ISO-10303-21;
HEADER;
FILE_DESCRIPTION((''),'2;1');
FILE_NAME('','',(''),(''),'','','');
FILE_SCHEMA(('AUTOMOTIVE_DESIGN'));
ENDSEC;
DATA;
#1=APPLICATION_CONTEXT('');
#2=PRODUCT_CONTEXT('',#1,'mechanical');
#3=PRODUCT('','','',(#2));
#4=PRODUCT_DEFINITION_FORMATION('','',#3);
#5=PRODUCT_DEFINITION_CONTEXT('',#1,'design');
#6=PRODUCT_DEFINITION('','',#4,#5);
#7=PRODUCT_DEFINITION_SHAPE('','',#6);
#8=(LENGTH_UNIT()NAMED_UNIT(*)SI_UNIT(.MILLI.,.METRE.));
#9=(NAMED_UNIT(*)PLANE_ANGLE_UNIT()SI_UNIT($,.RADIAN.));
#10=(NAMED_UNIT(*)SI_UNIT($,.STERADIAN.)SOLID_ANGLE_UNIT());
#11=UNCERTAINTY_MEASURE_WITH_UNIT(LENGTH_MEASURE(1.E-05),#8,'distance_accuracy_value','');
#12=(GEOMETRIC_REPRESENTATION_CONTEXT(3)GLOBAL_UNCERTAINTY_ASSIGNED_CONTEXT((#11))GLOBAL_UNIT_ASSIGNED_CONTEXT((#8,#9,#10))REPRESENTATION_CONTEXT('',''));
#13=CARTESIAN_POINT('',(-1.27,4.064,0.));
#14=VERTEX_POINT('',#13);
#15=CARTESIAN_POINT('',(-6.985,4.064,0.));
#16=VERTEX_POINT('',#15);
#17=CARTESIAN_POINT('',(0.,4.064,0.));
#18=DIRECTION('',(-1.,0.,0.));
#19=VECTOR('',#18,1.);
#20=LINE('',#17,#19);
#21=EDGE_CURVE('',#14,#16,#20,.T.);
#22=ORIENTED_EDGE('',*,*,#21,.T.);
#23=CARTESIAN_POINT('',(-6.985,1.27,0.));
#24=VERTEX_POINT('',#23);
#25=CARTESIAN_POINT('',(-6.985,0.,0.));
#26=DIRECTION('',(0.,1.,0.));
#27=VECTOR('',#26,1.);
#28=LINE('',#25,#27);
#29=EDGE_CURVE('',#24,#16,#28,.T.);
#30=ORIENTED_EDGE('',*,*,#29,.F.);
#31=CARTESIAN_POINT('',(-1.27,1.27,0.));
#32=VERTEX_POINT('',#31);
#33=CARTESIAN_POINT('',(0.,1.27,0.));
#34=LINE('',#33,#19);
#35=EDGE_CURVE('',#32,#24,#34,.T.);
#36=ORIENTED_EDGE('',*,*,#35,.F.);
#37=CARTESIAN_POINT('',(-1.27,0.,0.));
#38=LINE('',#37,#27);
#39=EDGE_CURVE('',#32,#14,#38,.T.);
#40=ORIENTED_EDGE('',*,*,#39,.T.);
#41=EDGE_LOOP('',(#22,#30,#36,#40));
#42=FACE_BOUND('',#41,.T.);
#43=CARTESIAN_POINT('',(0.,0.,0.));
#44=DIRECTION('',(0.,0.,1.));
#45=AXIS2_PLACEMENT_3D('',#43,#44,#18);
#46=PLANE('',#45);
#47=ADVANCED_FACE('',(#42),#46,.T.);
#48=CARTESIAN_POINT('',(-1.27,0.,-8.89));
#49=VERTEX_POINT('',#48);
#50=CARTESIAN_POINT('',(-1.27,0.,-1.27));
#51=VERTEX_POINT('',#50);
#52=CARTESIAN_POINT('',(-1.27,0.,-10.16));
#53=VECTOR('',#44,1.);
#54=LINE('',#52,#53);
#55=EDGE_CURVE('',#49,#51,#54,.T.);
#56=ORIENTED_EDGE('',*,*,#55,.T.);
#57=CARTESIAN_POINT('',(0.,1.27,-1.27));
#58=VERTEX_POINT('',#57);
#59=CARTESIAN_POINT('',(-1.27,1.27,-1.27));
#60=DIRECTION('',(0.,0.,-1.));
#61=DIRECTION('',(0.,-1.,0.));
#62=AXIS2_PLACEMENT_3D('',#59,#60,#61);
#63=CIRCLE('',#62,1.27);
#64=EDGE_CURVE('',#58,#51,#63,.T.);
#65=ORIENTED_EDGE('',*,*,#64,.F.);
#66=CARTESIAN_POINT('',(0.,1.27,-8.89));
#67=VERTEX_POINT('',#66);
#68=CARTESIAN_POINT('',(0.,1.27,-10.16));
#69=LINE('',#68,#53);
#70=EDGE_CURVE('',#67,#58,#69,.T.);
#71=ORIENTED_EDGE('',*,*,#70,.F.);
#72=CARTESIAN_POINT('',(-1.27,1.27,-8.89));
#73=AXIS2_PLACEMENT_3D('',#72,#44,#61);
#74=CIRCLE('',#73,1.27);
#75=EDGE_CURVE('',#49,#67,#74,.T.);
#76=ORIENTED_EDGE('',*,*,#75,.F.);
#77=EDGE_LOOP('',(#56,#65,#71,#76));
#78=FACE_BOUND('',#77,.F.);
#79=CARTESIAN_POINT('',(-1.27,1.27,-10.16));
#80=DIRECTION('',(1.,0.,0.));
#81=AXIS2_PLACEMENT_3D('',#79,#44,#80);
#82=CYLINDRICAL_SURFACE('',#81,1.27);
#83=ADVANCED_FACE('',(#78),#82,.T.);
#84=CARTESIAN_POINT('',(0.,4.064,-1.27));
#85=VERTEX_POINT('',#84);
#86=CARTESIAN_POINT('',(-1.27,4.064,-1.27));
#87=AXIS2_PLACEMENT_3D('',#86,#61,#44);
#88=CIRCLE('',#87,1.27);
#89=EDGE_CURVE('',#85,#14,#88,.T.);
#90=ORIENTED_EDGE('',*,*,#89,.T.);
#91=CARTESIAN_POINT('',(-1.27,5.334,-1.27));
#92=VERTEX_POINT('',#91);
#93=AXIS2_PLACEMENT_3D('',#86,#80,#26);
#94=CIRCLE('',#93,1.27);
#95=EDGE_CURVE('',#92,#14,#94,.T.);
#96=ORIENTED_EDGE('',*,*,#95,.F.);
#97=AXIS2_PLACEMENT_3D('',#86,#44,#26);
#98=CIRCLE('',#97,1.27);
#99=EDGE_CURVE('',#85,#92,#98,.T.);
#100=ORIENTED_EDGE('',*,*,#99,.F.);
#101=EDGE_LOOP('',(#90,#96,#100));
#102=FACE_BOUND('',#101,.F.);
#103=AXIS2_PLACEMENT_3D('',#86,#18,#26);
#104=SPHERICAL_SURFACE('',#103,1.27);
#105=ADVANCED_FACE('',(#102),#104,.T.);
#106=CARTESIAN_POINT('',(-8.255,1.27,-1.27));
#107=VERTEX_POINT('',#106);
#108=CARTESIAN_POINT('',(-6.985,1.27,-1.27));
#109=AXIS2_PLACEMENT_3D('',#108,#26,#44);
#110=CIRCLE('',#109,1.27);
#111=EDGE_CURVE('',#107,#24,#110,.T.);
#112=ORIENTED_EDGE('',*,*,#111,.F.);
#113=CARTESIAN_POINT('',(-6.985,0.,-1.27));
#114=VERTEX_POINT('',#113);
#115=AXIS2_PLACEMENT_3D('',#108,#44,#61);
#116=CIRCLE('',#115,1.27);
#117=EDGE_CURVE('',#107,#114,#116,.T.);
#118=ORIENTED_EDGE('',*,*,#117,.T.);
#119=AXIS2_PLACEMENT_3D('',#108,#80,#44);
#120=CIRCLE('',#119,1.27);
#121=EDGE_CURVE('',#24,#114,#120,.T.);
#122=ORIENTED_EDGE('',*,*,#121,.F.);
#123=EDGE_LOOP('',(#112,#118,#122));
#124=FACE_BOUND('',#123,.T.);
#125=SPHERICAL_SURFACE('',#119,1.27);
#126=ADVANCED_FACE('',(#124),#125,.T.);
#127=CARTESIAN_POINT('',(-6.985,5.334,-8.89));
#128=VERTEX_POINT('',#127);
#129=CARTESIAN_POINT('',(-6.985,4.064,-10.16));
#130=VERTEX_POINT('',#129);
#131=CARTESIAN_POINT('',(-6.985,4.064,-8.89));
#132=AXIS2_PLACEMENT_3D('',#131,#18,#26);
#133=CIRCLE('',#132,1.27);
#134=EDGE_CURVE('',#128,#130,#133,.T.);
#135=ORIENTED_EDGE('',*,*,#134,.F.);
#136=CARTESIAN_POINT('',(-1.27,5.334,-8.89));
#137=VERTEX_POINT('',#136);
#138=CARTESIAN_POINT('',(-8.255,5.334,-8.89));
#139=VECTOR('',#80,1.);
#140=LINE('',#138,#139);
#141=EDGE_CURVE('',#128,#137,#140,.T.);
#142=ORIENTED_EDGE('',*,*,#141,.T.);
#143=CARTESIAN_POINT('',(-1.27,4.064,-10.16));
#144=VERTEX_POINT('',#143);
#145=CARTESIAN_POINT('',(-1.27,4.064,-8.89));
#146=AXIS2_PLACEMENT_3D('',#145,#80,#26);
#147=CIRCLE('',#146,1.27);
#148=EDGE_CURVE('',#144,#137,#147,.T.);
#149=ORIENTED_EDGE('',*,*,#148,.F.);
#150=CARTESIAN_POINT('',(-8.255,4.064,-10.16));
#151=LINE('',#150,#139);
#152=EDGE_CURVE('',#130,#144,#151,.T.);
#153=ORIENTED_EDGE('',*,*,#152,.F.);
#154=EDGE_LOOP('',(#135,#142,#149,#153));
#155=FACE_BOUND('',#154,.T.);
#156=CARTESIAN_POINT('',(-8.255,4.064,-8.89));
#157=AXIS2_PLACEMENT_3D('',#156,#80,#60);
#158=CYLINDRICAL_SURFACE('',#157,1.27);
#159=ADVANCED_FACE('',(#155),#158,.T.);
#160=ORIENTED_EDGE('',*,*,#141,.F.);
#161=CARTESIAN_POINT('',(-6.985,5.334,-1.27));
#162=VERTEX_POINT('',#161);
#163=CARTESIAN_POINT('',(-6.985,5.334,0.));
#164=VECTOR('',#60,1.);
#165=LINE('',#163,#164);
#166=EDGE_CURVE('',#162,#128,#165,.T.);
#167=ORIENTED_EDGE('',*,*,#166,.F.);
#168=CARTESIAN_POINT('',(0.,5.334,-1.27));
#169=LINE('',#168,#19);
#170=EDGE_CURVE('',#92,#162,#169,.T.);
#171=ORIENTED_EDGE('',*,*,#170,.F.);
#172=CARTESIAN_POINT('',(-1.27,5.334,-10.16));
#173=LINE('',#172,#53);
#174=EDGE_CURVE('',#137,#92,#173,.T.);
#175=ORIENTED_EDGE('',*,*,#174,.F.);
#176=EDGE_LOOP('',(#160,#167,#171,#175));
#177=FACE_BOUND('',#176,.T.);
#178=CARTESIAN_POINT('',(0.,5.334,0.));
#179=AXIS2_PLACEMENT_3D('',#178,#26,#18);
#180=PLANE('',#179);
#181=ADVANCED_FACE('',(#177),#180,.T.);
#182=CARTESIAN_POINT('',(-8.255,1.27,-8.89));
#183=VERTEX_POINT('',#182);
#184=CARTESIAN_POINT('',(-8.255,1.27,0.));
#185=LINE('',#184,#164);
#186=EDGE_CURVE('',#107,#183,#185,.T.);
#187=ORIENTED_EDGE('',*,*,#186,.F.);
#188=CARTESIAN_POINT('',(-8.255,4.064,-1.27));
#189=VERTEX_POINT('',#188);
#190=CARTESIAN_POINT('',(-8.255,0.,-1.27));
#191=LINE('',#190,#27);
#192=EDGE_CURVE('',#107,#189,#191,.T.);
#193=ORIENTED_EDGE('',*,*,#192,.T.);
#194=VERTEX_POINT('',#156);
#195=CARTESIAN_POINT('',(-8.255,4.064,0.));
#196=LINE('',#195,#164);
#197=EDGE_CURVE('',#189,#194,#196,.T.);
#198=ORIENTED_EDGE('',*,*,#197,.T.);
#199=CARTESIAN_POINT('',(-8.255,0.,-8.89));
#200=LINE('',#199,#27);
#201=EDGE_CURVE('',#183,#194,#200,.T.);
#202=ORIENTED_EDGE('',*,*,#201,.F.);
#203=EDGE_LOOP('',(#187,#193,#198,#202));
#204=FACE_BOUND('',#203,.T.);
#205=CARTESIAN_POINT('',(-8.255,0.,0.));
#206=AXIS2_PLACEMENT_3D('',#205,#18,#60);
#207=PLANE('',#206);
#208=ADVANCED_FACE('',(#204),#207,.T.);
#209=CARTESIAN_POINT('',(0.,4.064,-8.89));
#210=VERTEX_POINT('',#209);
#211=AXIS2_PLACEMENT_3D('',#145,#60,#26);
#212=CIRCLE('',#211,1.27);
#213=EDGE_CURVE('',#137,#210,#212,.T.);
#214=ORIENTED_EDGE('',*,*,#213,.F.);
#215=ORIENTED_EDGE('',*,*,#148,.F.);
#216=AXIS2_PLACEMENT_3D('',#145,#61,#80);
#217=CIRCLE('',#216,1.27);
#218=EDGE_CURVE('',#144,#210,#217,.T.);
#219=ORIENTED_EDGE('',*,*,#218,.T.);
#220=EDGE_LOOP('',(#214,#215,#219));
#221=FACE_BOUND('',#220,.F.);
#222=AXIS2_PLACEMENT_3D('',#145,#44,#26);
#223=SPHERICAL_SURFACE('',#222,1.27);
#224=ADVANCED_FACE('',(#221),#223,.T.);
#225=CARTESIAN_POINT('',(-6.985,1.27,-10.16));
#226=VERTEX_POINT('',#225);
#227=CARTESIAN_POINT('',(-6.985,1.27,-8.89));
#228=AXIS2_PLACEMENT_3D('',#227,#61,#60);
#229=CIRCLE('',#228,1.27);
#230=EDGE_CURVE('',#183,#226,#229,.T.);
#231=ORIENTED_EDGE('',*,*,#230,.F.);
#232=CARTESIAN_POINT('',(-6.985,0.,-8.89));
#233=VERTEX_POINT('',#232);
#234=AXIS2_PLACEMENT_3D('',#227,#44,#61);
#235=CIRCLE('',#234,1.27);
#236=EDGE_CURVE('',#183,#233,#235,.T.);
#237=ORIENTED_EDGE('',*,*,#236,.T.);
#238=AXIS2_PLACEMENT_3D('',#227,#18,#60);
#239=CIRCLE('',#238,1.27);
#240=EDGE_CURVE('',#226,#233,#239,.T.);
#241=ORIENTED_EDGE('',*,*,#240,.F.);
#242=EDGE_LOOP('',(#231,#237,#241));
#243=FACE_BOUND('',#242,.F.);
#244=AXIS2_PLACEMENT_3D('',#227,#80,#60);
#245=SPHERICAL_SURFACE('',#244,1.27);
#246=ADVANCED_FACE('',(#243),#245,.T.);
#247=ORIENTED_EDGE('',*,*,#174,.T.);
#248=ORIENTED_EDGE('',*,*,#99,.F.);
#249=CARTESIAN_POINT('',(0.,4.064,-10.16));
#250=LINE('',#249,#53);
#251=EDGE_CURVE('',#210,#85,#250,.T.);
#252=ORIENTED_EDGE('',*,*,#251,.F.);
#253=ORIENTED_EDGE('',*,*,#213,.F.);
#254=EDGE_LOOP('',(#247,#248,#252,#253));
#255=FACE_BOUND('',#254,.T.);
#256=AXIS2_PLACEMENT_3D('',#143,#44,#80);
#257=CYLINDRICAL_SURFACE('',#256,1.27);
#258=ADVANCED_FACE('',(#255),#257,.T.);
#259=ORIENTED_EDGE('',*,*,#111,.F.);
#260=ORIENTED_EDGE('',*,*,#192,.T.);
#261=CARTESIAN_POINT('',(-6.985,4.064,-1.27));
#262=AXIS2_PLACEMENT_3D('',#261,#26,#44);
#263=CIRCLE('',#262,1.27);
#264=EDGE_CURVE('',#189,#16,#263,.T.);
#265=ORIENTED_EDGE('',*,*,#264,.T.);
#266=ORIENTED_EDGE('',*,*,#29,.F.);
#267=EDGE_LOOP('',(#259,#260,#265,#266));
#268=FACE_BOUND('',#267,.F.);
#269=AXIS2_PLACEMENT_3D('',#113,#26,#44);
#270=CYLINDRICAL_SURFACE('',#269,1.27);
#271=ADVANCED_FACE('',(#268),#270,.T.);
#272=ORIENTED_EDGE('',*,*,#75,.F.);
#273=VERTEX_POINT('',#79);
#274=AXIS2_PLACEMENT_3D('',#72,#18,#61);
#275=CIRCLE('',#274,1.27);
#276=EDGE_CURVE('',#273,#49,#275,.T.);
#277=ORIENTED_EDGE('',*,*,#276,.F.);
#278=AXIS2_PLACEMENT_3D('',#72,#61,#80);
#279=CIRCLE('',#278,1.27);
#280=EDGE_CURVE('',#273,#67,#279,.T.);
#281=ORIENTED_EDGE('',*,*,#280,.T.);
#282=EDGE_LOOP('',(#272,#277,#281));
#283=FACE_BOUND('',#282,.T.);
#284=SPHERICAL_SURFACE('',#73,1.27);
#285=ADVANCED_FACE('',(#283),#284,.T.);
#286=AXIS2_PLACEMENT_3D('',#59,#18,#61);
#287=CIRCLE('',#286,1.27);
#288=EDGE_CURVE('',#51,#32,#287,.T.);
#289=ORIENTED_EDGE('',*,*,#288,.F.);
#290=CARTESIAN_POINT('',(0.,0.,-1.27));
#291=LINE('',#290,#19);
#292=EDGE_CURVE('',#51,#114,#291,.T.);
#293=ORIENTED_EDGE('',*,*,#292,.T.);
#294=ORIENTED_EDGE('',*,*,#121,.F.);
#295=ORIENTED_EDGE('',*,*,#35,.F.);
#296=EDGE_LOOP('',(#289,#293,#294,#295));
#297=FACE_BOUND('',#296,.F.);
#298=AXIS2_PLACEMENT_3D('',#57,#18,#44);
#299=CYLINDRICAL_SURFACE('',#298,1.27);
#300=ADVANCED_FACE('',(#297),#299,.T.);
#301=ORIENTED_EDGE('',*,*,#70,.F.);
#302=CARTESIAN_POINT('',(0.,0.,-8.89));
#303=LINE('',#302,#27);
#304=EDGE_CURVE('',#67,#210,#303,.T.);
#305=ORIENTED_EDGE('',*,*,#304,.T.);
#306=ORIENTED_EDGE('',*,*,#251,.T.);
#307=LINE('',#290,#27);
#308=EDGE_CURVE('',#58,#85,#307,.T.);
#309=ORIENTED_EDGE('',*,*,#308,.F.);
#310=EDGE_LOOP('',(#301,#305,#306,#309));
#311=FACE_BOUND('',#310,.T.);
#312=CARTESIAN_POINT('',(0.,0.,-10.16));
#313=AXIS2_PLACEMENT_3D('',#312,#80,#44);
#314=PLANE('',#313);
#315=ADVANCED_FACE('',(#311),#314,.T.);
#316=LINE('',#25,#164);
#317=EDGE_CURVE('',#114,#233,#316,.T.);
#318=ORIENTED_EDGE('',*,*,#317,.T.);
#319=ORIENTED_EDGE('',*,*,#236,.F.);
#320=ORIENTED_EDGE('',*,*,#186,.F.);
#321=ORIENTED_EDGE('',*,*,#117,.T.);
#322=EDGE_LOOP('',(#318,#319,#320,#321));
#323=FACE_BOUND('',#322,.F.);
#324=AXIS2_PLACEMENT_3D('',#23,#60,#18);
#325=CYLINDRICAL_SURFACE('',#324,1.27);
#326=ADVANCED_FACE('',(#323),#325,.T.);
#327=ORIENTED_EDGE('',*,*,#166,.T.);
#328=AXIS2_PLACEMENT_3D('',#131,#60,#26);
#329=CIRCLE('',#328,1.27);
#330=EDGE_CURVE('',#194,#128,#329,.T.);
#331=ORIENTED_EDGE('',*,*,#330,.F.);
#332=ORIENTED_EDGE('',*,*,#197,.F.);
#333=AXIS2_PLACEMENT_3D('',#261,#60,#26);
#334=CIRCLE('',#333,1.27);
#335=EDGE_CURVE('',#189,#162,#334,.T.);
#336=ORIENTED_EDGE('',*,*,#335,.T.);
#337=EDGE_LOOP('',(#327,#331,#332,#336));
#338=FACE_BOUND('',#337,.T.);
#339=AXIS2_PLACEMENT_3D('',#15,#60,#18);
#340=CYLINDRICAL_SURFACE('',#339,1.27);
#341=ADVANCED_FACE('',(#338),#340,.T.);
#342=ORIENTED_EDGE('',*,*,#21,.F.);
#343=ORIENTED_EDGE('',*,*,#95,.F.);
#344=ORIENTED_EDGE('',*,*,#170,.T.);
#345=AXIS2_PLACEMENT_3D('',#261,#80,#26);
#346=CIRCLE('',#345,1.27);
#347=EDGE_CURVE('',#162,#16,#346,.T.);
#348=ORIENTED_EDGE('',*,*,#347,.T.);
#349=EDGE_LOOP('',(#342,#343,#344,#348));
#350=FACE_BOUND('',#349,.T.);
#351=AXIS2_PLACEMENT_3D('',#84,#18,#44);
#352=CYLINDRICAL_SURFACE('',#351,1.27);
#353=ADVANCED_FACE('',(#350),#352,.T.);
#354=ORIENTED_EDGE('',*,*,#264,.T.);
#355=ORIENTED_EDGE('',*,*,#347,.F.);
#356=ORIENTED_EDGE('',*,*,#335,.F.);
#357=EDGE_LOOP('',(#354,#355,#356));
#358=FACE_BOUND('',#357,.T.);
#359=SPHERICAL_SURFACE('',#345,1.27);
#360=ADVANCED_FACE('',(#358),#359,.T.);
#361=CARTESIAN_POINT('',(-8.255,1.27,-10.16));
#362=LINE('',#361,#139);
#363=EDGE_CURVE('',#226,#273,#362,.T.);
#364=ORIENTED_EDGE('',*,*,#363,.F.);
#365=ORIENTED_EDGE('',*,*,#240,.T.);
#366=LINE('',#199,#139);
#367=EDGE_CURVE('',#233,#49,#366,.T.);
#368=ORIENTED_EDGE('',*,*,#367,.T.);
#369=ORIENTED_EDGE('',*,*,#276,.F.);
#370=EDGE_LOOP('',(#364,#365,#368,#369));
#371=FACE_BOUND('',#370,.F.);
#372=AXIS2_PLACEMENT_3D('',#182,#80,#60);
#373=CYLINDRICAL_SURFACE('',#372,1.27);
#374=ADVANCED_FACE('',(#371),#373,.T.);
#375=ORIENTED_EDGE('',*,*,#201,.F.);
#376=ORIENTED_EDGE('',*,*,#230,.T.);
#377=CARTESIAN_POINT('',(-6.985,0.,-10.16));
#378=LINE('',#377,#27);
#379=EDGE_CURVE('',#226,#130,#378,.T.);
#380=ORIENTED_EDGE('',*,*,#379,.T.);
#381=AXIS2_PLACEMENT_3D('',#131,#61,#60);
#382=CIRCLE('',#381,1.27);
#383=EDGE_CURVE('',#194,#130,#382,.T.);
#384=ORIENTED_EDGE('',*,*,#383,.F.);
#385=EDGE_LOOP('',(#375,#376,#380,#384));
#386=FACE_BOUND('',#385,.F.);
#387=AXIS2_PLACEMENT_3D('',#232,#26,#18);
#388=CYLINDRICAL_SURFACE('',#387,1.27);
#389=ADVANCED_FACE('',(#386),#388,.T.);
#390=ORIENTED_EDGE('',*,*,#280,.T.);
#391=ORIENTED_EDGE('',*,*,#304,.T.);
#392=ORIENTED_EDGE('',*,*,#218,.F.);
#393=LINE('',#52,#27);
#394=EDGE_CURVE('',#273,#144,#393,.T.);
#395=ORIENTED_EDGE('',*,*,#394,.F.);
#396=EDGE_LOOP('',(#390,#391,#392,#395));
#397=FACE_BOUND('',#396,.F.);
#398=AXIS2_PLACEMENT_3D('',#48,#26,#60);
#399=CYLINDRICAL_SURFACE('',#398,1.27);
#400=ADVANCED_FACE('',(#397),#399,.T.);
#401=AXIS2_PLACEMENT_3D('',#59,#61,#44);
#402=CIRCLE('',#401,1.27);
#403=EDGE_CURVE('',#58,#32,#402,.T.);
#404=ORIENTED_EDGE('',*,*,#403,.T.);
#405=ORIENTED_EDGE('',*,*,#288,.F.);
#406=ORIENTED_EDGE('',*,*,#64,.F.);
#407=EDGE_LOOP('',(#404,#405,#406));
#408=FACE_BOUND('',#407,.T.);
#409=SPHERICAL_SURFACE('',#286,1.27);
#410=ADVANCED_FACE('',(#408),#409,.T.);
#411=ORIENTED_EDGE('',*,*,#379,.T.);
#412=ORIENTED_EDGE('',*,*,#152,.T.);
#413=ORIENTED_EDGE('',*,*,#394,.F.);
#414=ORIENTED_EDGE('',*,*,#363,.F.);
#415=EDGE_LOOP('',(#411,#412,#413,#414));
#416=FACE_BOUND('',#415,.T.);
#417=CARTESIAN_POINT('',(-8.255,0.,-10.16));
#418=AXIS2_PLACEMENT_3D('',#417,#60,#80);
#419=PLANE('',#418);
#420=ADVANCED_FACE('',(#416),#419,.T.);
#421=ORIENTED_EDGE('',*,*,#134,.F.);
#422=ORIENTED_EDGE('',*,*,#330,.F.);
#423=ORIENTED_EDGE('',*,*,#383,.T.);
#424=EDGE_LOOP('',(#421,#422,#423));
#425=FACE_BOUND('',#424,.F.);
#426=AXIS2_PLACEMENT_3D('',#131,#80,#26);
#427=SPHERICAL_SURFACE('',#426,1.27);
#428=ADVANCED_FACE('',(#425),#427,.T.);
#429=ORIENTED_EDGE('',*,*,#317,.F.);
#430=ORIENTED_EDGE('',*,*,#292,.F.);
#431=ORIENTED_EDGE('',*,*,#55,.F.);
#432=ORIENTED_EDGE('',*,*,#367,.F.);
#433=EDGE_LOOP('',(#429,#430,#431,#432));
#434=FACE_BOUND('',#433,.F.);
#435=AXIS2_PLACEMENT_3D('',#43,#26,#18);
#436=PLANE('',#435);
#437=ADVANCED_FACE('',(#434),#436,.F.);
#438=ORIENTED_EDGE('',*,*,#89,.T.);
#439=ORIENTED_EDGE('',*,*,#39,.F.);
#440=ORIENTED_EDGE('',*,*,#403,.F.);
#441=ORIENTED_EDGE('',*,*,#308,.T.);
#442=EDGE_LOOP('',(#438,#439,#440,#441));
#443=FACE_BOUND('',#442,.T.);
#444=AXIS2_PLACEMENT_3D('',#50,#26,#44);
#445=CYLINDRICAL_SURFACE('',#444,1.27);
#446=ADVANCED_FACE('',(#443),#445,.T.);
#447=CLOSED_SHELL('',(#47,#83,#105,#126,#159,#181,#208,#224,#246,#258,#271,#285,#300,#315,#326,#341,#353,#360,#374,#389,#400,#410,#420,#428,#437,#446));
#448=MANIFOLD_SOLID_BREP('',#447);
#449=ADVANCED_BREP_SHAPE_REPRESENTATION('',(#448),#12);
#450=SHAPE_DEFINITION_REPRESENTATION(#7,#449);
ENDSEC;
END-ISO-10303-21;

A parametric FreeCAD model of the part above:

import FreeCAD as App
import Part
import Sketcher

V = App.Vector
Q = App.Units.Quantity


def add_polygon(sketch, points):
    """Adds a closed chain of lines whose ends are joined by coincident constraints."""
    first, n = sketch.GeometryCount, len(points)
    for a, b in zip(points, points[1:] + points[:1]):
        sketch.addGeometry(Part.LineSegment(App.Vector(*a, 0), App.Vector(*b, 0)), False)
    for i in range(n):
        sketch.addConstraint(Sketcher.Constraint("Coincident", first + i, 2, first + (i + 1) % n, 1))

doc = App.newDocument("Part")
body = doc.addObject("PartDesign::Body", "Body")

# Sketch on XZ plane
sketch1 = body.newObject("Sketcher::SketchObject", "Sketch")
sketch1.AttachmentSupport = (doc.getObject("XZ_Plane"), [""])
sketch1.MapMode = "FlatFace"
add_polygon(sketch1, [(-8.255, 0), (0, 0), (0, -10.16), (-8.255, -10.16)])  # lines 0-3
sketch1.addConstraint(Sketcher.Constraint("Horizontal", 0))
sketch1.addConstraint(Sketcher.Constraint("Vertical", 1))
sketch1.addConstraint(Sketcher.Constraint("Horizontal", 2))
sketch1.addConstraint(Sketcher.Constraint("Vertical", 3))
sketch1.addConstraint(Sketcher.Constraint("Coincident", 0, 2, -1, 1))
sketch1.addConstraint(Sketcher.Constraint("DistanceY", 1, 2, 1, 1, Q("0.4 in")))
sketch1.addConstraint(Sketcher.Constraint("DistanceX", 0, 1, 0, 2, Q("0.325 in")))
pad1 = body.newObject("PartDesign::Pad", "Pad")
pad1.Profile = sketch1
pad1.Length = Q("0.21 in")
pad1.Reversed = True
doc.recompute()

fillet = body.newObject("PartDesign::Fillet", "Fillet")
fillet.Base = (pad1, ["Edge1"])
fillet.UseAllEdges = True
fillet.Radius = Q("0.05 in")

doc.recompute()
